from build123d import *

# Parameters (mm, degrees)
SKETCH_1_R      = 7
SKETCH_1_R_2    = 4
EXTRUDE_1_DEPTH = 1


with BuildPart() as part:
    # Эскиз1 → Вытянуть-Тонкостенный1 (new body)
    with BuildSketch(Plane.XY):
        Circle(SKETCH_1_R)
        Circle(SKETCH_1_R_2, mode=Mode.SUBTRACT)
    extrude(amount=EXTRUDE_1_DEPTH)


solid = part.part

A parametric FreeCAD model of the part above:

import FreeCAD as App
import Part
import Sketcher

V = App.Vector
Q = App.Units.Quantity

doc = App.newDocument("Part")
params = doc.addObject("Spreadsheet::Sheet", "Params")
for row, (alias, value) in enumerate([
    ("sketch1_diameter", "14 mm"),
    ("sketch1_diameter2", "8 mm"),
    ("pad1_length", "1 mm"),
], start=1):
    params.set(f"A{row}", alias)
    params.set(f"B{row}", "=" + value)
    params.setAlias(f"B{row}", alias)

body = doc.addObject("PartDesign::Body", "Body")

# Sketch on XY plane
sketch1 = body.newObject("Sketcher::SketchObject", "Sketch")
sketch1.AttachmentSupport = (doc.getObject("XY_Plane"), [""])
sketch1.MapMode = "FlatFace"
sketch1.addGeometry([
    Part.Circle(V(0, 0, 0), V(0, 0, 1), 7),
    Part.Circle(V(0, 0, 0), V(0, 0, 1), 4),
], False)
sketch1.addConstraint([
    Sketcher.Constraint("Coincident", 0, 3, -1, 1),
    Sketcher.Constraint("Coincident", 1, 3, -1, 1),
    Sketcher.Constraint("Diameter", 0, Q("14 mm")),
    Sketcher.Constraint("Diameter", 1, Q("8 mm")),
])
sketch1.setExpression("Constraints[2]", "Params.sketch1_diameter")
sketch1.setExpression("Constraints[3]", "Params.sketch1_diameter2")
pad1 = body.newObject("PartDesign::Pad", "Pad")
pad1.Profile = sketch1
pad1.setExpression("Length", "Params.pad1_length")

doc.recompute()
